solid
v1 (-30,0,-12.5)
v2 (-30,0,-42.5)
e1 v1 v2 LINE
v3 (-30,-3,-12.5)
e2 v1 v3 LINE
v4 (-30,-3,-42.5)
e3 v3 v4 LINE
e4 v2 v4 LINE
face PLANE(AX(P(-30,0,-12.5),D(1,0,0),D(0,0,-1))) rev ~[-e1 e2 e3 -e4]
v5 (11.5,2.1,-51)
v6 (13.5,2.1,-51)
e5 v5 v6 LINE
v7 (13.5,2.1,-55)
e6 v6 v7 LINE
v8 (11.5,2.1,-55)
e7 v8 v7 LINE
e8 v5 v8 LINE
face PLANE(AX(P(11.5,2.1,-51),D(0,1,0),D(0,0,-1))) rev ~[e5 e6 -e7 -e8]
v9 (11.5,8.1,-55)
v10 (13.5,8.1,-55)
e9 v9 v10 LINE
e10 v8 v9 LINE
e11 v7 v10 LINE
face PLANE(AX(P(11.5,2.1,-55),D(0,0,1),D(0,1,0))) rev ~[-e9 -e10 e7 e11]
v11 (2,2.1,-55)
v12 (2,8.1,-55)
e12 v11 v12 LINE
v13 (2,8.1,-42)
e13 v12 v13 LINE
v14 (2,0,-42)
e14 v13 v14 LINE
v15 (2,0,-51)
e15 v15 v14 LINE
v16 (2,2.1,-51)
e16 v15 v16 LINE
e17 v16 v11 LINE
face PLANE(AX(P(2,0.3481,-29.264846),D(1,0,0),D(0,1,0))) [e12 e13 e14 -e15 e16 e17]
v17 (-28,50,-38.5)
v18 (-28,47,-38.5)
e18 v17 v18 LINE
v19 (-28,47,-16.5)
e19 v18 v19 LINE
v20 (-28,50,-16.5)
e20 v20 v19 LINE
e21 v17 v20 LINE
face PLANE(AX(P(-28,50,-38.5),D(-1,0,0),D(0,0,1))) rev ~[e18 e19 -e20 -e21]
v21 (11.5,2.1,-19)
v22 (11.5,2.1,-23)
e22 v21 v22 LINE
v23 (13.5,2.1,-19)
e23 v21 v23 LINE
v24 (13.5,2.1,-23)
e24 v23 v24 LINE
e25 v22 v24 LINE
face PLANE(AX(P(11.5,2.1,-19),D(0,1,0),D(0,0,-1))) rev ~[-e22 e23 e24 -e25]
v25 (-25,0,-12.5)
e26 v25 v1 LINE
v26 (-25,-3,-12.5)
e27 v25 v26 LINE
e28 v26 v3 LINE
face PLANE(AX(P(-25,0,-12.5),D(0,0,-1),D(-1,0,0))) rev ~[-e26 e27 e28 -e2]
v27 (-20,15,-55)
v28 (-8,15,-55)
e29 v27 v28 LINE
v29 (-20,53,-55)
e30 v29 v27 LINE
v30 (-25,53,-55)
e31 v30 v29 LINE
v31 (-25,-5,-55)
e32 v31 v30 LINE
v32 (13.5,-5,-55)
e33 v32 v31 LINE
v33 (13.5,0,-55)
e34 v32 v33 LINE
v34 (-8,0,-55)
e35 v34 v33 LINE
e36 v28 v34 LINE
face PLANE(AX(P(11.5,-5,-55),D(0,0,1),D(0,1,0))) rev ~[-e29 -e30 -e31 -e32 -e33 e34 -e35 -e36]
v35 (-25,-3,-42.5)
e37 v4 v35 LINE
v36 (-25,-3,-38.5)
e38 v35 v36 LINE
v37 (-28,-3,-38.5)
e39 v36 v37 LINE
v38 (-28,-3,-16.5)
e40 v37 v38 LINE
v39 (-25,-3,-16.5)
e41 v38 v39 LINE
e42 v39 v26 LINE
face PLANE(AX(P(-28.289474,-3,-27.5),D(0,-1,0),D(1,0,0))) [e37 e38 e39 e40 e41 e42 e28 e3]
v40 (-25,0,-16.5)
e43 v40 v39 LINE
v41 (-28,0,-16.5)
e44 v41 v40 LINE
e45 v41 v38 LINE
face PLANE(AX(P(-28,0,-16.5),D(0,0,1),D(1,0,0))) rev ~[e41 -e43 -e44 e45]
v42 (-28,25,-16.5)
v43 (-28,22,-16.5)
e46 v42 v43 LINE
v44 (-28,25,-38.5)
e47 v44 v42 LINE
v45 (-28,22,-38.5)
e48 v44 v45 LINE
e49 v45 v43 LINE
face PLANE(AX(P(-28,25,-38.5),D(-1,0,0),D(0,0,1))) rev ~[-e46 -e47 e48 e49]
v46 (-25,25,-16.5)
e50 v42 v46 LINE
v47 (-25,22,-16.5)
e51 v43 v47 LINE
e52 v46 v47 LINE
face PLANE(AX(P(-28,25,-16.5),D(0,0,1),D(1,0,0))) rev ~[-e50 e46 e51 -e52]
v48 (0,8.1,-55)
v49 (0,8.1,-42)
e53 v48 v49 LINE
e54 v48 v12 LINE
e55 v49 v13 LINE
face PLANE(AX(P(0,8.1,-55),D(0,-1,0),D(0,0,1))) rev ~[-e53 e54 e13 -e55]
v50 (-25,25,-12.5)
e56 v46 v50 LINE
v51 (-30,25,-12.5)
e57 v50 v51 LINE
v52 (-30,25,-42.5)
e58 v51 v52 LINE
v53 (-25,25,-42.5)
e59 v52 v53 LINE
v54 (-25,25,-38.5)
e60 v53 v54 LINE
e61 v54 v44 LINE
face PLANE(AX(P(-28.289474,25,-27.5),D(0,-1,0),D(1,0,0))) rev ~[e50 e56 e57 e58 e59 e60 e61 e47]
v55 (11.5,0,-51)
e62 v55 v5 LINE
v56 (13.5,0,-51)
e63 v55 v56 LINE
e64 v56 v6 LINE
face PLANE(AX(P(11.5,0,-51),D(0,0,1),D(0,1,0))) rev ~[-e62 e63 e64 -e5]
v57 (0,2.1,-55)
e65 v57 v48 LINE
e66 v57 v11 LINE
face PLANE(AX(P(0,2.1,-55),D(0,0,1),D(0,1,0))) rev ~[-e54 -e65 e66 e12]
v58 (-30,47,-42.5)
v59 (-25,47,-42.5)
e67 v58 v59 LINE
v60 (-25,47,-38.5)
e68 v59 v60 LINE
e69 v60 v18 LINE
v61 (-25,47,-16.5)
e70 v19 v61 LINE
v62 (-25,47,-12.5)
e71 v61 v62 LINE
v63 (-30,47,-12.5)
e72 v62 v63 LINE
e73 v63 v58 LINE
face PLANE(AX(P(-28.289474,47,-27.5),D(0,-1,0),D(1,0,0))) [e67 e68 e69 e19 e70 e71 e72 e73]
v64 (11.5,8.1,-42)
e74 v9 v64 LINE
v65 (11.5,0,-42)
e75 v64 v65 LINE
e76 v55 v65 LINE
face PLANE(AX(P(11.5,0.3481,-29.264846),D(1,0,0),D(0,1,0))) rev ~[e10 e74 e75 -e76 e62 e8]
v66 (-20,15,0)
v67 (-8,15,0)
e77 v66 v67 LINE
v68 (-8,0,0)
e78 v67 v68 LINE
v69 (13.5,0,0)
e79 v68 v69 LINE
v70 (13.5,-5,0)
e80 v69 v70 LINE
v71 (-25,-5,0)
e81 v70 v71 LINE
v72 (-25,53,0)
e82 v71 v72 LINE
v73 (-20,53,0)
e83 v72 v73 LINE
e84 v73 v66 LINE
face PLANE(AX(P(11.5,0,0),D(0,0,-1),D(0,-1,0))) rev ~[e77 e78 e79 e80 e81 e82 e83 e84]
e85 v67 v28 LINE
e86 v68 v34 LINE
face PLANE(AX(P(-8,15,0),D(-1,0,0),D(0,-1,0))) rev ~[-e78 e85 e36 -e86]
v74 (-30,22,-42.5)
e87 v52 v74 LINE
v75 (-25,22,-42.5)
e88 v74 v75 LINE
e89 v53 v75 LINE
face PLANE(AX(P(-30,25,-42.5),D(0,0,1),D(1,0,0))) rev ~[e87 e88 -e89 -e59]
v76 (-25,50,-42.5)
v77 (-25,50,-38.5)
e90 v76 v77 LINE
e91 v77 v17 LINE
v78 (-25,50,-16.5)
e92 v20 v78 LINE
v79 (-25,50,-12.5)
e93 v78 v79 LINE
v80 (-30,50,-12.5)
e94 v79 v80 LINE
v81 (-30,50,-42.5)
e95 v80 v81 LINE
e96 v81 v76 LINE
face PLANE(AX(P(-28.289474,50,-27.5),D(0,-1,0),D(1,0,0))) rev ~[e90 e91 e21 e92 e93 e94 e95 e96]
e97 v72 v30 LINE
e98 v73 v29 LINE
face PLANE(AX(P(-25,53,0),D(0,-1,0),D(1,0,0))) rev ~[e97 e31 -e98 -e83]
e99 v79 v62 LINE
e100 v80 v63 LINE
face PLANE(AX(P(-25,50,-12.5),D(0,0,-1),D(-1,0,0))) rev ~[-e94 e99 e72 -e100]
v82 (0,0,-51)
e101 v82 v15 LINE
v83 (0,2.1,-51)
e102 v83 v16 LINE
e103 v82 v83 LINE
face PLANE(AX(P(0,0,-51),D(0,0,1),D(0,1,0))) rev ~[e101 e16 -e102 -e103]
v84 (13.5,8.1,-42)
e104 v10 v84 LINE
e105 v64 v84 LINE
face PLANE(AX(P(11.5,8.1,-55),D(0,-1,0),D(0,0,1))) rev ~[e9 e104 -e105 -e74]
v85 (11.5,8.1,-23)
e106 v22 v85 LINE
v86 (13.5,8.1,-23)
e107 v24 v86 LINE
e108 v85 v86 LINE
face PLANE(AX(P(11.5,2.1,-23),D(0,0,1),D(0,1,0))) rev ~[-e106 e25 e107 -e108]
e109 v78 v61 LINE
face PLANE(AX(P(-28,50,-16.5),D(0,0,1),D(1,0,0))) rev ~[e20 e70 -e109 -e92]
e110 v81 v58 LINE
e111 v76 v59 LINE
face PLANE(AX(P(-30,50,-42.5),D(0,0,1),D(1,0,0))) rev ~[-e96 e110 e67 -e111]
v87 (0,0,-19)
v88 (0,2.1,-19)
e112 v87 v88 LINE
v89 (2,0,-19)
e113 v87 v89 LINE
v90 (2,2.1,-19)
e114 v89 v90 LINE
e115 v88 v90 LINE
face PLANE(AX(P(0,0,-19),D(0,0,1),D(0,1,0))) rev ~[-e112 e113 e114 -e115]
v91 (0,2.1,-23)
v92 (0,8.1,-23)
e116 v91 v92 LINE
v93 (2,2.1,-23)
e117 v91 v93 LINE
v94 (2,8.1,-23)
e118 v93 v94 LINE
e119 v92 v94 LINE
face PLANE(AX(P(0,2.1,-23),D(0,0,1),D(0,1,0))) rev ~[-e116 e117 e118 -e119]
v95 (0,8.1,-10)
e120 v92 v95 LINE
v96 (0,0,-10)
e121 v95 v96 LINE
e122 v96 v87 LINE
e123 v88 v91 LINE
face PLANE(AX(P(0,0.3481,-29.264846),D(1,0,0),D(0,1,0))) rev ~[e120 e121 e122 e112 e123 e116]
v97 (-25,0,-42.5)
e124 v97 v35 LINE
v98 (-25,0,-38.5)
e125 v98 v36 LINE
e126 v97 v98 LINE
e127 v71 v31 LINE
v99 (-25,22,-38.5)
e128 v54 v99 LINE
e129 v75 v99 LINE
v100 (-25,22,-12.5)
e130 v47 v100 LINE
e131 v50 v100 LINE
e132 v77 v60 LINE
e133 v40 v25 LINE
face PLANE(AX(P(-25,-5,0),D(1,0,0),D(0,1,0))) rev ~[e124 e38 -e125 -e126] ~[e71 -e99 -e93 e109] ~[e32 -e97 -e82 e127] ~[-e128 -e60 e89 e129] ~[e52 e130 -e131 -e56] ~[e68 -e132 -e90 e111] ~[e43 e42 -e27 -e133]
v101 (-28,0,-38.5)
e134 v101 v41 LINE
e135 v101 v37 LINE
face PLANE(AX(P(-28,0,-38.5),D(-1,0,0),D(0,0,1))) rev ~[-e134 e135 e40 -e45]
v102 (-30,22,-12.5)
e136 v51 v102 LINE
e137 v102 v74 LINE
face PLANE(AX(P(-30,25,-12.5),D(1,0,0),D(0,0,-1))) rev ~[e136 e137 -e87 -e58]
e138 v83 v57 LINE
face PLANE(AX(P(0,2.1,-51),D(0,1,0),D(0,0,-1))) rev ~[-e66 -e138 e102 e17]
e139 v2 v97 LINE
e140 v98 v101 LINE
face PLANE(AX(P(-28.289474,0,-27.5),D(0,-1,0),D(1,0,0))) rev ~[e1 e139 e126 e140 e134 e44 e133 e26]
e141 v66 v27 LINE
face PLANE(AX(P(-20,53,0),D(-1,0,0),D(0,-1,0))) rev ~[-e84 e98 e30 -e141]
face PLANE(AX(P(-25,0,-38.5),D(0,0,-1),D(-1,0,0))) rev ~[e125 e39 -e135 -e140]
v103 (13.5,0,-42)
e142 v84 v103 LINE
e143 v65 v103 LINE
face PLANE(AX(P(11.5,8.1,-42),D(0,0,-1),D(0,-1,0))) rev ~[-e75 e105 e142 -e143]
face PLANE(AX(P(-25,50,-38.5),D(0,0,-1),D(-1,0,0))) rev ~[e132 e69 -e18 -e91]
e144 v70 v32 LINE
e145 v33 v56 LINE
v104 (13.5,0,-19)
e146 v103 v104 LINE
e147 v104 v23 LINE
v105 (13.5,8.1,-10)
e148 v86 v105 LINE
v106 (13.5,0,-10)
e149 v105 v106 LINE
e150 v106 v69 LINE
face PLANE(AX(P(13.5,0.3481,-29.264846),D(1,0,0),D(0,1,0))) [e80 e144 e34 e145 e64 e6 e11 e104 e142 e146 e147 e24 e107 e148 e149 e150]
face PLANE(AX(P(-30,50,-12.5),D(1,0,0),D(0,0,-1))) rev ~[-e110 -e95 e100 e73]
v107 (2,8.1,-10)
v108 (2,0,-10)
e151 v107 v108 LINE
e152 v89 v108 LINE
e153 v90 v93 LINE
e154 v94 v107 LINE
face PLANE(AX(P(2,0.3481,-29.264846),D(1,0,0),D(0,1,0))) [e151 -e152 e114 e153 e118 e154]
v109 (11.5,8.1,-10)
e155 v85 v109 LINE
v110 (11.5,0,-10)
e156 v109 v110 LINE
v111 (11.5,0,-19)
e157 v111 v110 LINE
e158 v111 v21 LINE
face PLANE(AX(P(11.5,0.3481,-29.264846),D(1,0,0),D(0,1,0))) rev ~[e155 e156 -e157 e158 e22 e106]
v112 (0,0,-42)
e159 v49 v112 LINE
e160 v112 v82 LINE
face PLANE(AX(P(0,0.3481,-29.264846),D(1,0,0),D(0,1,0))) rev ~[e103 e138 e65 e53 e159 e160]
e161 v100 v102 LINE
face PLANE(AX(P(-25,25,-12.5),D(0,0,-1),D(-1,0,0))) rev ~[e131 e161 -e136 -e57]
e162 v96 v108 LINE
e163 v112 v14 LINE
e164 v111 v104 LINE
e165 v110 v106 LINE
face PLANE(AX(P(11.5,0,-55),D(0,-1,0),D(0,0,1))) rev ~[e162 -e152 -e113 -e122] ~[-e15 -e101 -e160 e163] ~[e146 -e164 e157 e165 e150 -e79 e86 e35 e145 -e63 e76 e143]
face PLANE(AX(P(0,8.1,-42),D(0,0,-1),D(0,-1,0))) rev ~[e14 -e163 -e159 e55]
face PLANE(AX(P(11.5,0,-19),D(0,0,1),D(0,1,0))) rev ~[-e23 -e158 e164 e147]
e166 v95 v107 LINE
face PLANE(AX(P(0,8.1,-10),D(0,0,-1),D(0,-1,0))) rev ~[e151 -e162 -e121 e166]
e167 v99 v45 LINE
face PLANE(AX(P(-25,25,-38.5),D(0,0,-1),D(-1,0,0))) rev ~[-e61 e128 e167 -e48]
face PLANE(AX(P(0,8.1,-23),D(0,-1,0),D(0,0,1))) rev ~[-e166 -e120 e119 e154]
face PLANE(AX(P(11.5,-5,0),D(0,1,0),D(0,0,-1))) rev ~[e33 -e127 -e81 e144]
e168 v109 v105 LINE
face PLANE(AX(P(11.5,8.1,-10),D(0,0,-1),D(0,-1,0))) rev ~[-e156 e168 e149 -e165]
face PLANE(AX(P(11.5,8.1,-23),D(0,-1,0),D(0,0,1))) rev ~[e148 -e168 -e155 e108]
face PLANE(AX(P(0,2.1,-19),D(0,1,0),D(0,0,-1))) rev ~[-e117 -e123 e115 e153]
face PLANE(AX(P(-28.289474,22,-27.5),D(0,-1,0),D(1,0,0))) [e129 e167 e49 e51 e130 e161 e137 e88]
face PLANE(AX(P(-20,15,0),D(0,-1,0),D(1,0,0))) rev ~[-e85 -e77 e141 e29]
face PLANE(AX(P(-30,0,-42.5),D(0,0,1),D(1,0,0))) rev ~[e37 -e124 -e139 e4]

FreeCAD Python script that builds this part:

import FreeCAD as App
import Part
import Sketcher

V = App.Vector


def add_polygon(sketch, points):
    """Adds a closed chain of lines whose ends are joined by coincident constraints."""
    first, n = sketch.GeometryCount, len(points)
    for a, b in zip(points, points[1:] + points[:1]):
        sketch.addGeometry(Part.LineSegment(App.Vector(*a, 0), App.Vector(*b, 0)), False)
    for i in range(n):
        sketch.addConstraint(Sketcher.Constraint("Coincident", first + i, 2, first + (i + 1) % n, 1))

doc = App.newDocument("Part")
body = doc.addObject("PartDesign::Body", "Body")

sketch1 = doc.addObject("Sketcher::SketchObject", "Sketch")
body.addObject(sketch1)
sketch1.AttachmentSupport = (doc.XY_Plane, [""])
sketch1.MapMode = "FlatFace"
add_polygon(sketch1, [(-25, -5), (0, -5), (0, 0), (-8, 0), (-8, 15), (-20, 15), (-20, 53), (-25, 53)])
sketch1.addConstraint([
    Sketcher.Constraint("Horizontal", 0),
    Sketcher.Constraint("Vertical", 1),
    Sketcher.Constraint("Horizontal", 2),
    Sketcher.Constraint("Vertical", 3),
    Sketcher.Constraint("Horizontal", 4),
    Sketcher.Constraint("Vertical", 5),
    Sketcher.Constraint("Horizontal", 6),
    Sketcher.Constraint("Vertical", 7),
    Sketcher.Constraint("Coincident", 1, 2, -1, 1),
    Sketcher.Constraint("Equal", 6, 1),
    Sketcher.Constraint("DistanceX", 0, 1, 0, 2, 25.0),
    Sketcher.Constraint("DistanceX", 2, 2, 2, 1, 8.0),
    Sketcher.Constraint("DistanceX", 4, 2, 4, 1, 12.0),
    Sketcher.Constraint("DistanceY", 3, 1, 3, 2, 15.0),
    Sketcher.Constraint("DistanceY", 5, 1, 5, 2, 38.0),
])
pad1 = doc.addObject("PartDesign::Pad", "Pad")
body.addObject(pad1)
pad1.Profile = sketch1
pad1.Length = 55
pad1.Reversed = True

sketch2 = doc.addObject("Sketcher::SketchObject", "Sketch001")
body.addObject(sketch2)
sketch2.AttachmentSupport = (doc.YZ_Plane, [""])
sketch2.MapMode = "FlatFace"
add_polygon(sketch2, [(-5, -55), (0, -55), (0, -51), (2.1, -51), (2.1, -55), (8.1, -55), (8.1, -42), (0, -42), (0, -19), (2.1, -19), (2.1, -23), (8.1, -23), (8.1, -10), (0, -10), (0, 0), (-5, 0)])
sketch2.addConstraint([
    Sketcher.Constraint("Horizontal", 0),
    Sketcher.Constraint("Vertical", 1),
    Sketcher.Constraint("Horizontal", 2),
    Sketcher.Constraint("Vertical", 3),
    Sketcher.Constraint("Horizontal", 4),
    Sketcher.Constraint("Vertical", 5),
    Sketcher.Constraint("Horizontal", 6),
    Sketcher.Constraint("Vertical", 7),
    Sketcher.Constraint("Horizontal", 8),
    Sketcher.Constraint("Vertical", 9),
    Sketcher.Constraint("Horizontal", 10),
    Sketcher.Constraint("Vertical", 11),
    Sketcher.Constraint("Horizontal", 12),
    Sketcher.Constraint("Vertical", 13),
    Sketcher.Constraint("Horizontal", 14),
    Sketcher.Constraint("Vertical", 15),
    Sketcher.Constraint("Coincident", 13, 2, -1, 1),
    Sketcher.Constraint("PointOnObject", 0, 2, -2),
    Sketcher.Constraint("PointOnObject", 6, 2, -2),
    Sketcher.Constraint("Horizontal", 0, 2, 3, 2),
    Sketcher.Constraint("Vertical", 3, 2, 8, 2),
    Sketcher.Constraint("Vertical", 5, 2, 10, 2),
    Sketcher.Constraint("Equal", 3, 9),
    Sketcher.Constraint("Equal", 5, 11),
    Sketcher.Constraint("DistanceX", 0, 1, 0, 2, 5.0),
    Sketcher.Constraint("DistanceX", 4, 1, 4, 2, 6.0),
    Sketcher.Constraint("DistanceY", 1, 1, 1, 2, 4.0),
    Sketcher.Constraint("DistanceY", 5, 1, 5, 2, 13.0),
    Sketcher.Constraint("DistanceY", 7, 1, 7, 2, 23.0),
    Sketcher.Constraint("DistanceY", 13, 1, 13, 2, 10.0),
    Sketcher.Constraint("DistanceX", 2, 1, 2, 2, 2.1),
])
pad2 = doc.addObject("PartDesign::Pad", "Pad001")
body.addObject(pad2)
pad2.Profile = sketch2
pad2.Length = 2

sketch3 = doc.addObject("Sketcher::SketchObject", "Sketch002")
body.addObject(sketch3)
sketch3.AttachmentSupport = (doc.YZ_Plane, [""])
sketch3.MapMode = "FlatFace"
sketch3.AttachmentOffset = App.Placement(V(0, 0, 2), App.Rotation())
add_polygon(sketch3, [(-5, 0), (-5, -55), (0, -55), (0, 0)])
sketch3.addConstraint([
    Sketcher.Constraint("Vertical", 0),
    Sketcher.Constraint("Horizontal", 1),
    Sketcher.Constraint("Vertical", 2),
    Sketcher.Constraint("Horizontal", 3),
    Sketcher.Constraint("Coincident", 2, 2, -1, 1),
    Sketcher.Constraint("DistanceX", 1, 1, 1, 2, 5.0),
    Sketcher.Constraint("DistanceY", 0, 2, 0, 1, 55.0),
])
pad3 = doc.addObject("PartDesign::Pad", "Pad002")
body.addObject(pad3)
pad3.Profile = sketch3
pad3.Length = 9.5
doc.recompute()

linearpattern = doc.addObject("PartDesign::LinearPattern", "LinearPattern")
body.addObject(linearpattern)
linearpattern.Originals = [pad2]
linearpattern.Direction = (doc.X_Axis, [""])
linearpattern.Mode = "offset"
linearpattern.Offset = 11.5
linearpattern.Occurrences = 2
body.Tip = linearpattern

sketch4 = doc.addObject("Sketcher::SketchObject", "Sketch003")
body.addObject(sketch4)
sketch4.AttachmentSupport = (doc.XZ_Plane, [""])
sketch4.MapMode = "FlatFace"
add_polygon(sketch4, [(-25, -12.5), (-30, -12.5), (-30, -42.5), (-25, -42.5), (-25, -38.5), (-28, -38.5), (-28, -16.5), (-25, -16.5)])
sketch4.addConstraint([
    Sketcher.Constraint("Horizontal", 0),
    Sketcher.Constraint("Vertical", 1),
    Sketcher.Constraint("Horizontal", 2),
    Sketcher.Constraint("Vertical", 3),
    Sketcher.Constraint("Horizontal", 4),
    Sketcher.Constraint("Vertical", 5),
    Sketcher.Constraint("Horizontal", 6),
    Sketcher.Constraint("Vertical", 7),
    Sketcher.Constraint("Vertical", 3, 2, 6, 2),
    Sketcher.Constraint("Equal", 3, 7),
    Sketcher.Constraint("DistanceX", 0, 2, 0, 1, 5.0),
    Sketcher.Constraint("DistanceX", 4, 2, 4, 1, 3.0),
    Sketcher.Constraint("DistanceY", 1, 2, 1, 1, 30.0),
    Sketcher.Constraint("DistanceY", 3, 1, 3, 2, 4.0),
    Sketcher.Constraint("DistanceX", 0, 2, -1, 1, 30.0),
    Sketcher.Constraint("DistanceY", 0, 2, -1, 1, 12.5),
])
pad4 = doc.addObject("PartDesign::Pad", "Pad003")
body.addObject(pad4)
pad4.Profile = sketch4
pad4.Length = 3
doc.recompute()

linearpattern2 = doc.addObject("PartDesign::LinearPattern", "LinearPattern001")
body.addObject(linearpattern2)
linearpattern2.Originals = [pad4]
linearpattern2.Direction = (doc.Y_Axis, [""])
linearpattern2.Mode = "offset"
linearpattern2.Offset = 25
linearpattern2.Occurrences = 3
body.Tip = linearpattern2

doc.recompute()
